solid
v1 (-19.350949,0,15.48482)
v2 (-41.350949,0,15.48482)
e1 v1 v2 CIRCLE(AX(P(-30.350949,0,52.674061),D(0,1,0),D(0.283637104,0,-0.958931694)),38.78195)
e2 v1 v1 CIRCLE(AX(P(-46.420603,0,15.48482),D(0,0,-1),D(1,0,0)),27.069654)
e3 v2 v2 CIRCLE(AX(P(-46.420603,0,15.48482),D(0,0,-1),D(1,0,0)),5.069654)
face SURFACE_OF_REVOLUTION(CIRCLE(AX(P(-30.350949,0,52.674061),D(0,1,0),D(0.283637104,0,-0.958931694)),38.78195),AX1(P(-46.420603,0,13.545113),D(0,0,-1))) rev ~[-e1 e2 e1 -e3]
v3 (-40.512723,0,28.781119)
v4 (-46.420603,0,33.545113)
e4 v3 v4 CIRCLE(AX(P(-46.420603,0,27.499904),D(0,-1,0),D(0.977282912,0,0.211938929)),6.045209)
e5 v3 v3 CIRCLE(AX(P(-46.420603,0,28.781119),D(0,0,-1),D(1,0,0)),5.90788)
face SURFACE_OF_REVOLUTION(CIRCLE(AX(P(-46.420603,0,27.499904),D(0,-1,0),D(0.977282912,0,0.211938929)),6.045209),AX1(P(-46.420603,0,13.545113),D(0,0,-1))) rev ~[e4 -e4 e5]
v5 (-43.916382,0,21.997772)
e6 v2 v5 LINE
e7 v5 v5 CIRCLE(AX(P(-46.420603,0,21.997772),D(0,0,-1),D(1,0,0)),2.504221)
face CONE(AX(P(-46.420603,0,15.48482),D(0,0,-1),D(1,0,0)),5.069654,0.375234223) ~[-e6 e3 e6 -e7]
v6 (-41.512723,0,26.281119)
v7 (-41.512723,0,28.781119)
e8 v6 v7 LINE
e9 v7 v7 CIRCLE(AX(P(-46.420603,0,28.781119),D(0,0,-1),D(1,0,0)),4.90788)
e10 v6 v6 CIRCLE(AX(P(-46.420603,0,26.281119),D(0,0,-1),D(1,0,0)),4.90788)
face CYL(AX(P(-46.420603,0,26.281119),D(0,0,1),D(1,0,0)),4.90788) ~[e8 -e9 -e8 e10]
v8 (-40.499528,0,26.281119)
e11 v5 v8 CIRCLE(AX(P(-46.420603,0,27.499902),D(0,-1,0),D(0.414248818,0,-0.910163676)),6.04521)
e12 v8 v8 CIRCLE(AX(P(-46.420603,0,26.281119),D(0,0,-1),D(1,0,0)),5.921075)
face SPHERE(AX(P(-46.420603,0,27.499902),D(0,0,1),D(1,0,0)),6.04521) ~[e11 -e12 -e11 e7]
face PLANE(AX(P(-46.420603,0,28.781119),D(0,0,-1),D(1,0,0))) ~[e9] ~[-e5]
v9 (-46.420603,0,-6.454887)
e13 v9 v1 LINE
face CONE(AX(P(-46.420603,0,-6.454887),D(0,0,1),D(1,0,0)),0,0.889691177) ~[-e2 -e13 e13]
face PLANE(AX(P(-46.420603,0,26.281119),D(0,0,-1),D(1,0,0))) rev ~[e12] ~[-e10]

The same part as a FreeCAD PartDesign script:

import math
import FreeCAD as App
import Part
import Sketcher
Q = App.Units.Quantity

doc = App.newDocument("Part")
body = doc.addObject("PartDesign::Body", "Body")

sketch1 = body.newObject("Sketcher::SketchObject", "Sketch")
sketch1.AttachmentSupport = (doc.getObject("XZ_Plane"), [""])
sketch1.MapMode = "FlatFace"
sketch1.addGeometry([
    Part.LineSegment(App.Vector(-41.350949, 15.48482, 0), App.Vector(-43.916382, 21.997772, 0)),
    Part.ArcOfCircle(Part.Circle(App.Vector(-46.420603, 27.499902, 0), App.Vector(0, 0, 1), 6.04521), math.radians(-65.52798), math.radians(-11.631208)),
    Part.LineSegment(App.Vector(-40.499528, 26.281119, 0), App.Vector(-41.512723, 26.281119, 0)),
    Part.LineSegment(App.Vector(-41.512723, 26.281119, 0), App.Vector(-41.512723, 28.781119, 0)),
    Part.LineSegment(App.Vector(-41.512723, 28.781119, 0), App.Vector(-40.512723, 28.781119, 0)),
    Part.ArcOfCircle(Part.Circle(App.Vector(-46.420603, 27.499904, 0), App.Vector(0, 0, 1), 6.045209), math.radians(12.236003), math.radians(90.000004)),
    Part.LineSegment(App.Vector(-46.420603, 33.545113, 0), App.Vector(-46.420603, -6.454887, 0)),
    Part.LineSegment(App.Vector(-46.420603, -6.454887, 0), App.Vector(-19.350949, 15.48482, 0)),
    Part.ArcOfCircle(Part.Circle(App.Vector(-30.350949, 52.674061, 0), App.Vector(0, 0, 1), 38.78195), math.radians(-106.477399), math.radians(-73.522601)),
], False)
sketch1.addGeometry(Part.LineSegment(App.Vector(-46.420603, 52.674061, 0), App.Vector(-46.420603, -6.454887, 0)), True)
sketch1.addConstraint([
    Sketcher.Constraint("Coincident", 0, 2, 1, 1),
    Sketcher.Constraint("Coincident", 1, 2, 2, 1),
    Sketcher.Constraint("Coincident", 2, 2, 3, 1),
    Sketcher.Constraint("Coincident", 3, 2, 4, 1),
    Sketcher.Constraint("Coincident", 4, 2, 5, 1),
    Sketcher.Constraint("Coincident", 5, 2, 6, 1),
    Sketcher.Constraint("Coincident", 6, 2, 7, 1),
    Sketcher.Constraint("Coincident", 7, 2, 8, 2),
    Sketcher.Constraint("Coincident", 8, 1, 0, 1),
    Sketcher.Constraint("Horizontal", 2),
    Sketcher.Constraint("Vertical", 3),
    Sketcher.Constraint("Horizontal", 4),
    Sketcher.Constraint("Vertical", 6),
    Sketcher.Constraint("Vertical", 9),
    Sketcher.Constraint("Coincident", 5, 3, 1, 3),
    Sketcher.Constraint("Coincident", 9, 2, 6, 2),
    Sketcher.Constraint("DistanceX", 4, 1, 4, 2, Q("1 mm")),
    Sketcher.Constraint("DistanceY", 6, 2, 6, 1, Q("40 mm")),
    Sketcher.Constraint("Distance", 0, Q("6.999999 mm")),
    Sketcher.Constraint("DistanceY", 3, 1, 3, 2, Q("2.5 mm")),
    Sketcher.Constraint("Radius", 1, Q("6.04521 mm")),
    Sketcher.Constraint("Radius", 5, Q("6.045209 mm")),
    Sketcher.Constraint("Radius", 8, Q("38.78195 mm")),
    Sketcher.Constraint("DistanceY", 9, 2, 9, 1, Q("59.128948 mm")),
    Sketcher.Constraint("DistanceY", 7, 2, 1, 2, Q("10.796299 mm")),
    Sketcher.Constraint("DistanceY", 8, 1, 2, 2, Q("10.796299 mm")),
    Sketcher.Constraint("Distance", 7, Q("34.84418 mm")),
    Sketcher.Constraint("DistanceX", 2, 2, 2, 1, Q("1.013195 mm")),
    Sketcher.Constraint("DistanceX", 8, 3, -1, 1, Q("30.350949 mm")),
    Sketcher.Constraint("DistanceY", -1, 1, 8, 3, Q("52.674061 mm")),
    Sketcher.Constraint("DistanceY", -1, 1, 1, 2, Q("26.281119 mm")),
    Sketcher.Constraint("DistanceX", 1, 3, 0, 2, Q("2.504221 mm")),
])
revolution = body.newObject("PartDesign::Revolution", "Revolution")
revolution.Profile = sketch1
revolution.ReferenceAxis = (sketch1, ["Axis0"])
revolution.Angle = 360

doc.recompute()
